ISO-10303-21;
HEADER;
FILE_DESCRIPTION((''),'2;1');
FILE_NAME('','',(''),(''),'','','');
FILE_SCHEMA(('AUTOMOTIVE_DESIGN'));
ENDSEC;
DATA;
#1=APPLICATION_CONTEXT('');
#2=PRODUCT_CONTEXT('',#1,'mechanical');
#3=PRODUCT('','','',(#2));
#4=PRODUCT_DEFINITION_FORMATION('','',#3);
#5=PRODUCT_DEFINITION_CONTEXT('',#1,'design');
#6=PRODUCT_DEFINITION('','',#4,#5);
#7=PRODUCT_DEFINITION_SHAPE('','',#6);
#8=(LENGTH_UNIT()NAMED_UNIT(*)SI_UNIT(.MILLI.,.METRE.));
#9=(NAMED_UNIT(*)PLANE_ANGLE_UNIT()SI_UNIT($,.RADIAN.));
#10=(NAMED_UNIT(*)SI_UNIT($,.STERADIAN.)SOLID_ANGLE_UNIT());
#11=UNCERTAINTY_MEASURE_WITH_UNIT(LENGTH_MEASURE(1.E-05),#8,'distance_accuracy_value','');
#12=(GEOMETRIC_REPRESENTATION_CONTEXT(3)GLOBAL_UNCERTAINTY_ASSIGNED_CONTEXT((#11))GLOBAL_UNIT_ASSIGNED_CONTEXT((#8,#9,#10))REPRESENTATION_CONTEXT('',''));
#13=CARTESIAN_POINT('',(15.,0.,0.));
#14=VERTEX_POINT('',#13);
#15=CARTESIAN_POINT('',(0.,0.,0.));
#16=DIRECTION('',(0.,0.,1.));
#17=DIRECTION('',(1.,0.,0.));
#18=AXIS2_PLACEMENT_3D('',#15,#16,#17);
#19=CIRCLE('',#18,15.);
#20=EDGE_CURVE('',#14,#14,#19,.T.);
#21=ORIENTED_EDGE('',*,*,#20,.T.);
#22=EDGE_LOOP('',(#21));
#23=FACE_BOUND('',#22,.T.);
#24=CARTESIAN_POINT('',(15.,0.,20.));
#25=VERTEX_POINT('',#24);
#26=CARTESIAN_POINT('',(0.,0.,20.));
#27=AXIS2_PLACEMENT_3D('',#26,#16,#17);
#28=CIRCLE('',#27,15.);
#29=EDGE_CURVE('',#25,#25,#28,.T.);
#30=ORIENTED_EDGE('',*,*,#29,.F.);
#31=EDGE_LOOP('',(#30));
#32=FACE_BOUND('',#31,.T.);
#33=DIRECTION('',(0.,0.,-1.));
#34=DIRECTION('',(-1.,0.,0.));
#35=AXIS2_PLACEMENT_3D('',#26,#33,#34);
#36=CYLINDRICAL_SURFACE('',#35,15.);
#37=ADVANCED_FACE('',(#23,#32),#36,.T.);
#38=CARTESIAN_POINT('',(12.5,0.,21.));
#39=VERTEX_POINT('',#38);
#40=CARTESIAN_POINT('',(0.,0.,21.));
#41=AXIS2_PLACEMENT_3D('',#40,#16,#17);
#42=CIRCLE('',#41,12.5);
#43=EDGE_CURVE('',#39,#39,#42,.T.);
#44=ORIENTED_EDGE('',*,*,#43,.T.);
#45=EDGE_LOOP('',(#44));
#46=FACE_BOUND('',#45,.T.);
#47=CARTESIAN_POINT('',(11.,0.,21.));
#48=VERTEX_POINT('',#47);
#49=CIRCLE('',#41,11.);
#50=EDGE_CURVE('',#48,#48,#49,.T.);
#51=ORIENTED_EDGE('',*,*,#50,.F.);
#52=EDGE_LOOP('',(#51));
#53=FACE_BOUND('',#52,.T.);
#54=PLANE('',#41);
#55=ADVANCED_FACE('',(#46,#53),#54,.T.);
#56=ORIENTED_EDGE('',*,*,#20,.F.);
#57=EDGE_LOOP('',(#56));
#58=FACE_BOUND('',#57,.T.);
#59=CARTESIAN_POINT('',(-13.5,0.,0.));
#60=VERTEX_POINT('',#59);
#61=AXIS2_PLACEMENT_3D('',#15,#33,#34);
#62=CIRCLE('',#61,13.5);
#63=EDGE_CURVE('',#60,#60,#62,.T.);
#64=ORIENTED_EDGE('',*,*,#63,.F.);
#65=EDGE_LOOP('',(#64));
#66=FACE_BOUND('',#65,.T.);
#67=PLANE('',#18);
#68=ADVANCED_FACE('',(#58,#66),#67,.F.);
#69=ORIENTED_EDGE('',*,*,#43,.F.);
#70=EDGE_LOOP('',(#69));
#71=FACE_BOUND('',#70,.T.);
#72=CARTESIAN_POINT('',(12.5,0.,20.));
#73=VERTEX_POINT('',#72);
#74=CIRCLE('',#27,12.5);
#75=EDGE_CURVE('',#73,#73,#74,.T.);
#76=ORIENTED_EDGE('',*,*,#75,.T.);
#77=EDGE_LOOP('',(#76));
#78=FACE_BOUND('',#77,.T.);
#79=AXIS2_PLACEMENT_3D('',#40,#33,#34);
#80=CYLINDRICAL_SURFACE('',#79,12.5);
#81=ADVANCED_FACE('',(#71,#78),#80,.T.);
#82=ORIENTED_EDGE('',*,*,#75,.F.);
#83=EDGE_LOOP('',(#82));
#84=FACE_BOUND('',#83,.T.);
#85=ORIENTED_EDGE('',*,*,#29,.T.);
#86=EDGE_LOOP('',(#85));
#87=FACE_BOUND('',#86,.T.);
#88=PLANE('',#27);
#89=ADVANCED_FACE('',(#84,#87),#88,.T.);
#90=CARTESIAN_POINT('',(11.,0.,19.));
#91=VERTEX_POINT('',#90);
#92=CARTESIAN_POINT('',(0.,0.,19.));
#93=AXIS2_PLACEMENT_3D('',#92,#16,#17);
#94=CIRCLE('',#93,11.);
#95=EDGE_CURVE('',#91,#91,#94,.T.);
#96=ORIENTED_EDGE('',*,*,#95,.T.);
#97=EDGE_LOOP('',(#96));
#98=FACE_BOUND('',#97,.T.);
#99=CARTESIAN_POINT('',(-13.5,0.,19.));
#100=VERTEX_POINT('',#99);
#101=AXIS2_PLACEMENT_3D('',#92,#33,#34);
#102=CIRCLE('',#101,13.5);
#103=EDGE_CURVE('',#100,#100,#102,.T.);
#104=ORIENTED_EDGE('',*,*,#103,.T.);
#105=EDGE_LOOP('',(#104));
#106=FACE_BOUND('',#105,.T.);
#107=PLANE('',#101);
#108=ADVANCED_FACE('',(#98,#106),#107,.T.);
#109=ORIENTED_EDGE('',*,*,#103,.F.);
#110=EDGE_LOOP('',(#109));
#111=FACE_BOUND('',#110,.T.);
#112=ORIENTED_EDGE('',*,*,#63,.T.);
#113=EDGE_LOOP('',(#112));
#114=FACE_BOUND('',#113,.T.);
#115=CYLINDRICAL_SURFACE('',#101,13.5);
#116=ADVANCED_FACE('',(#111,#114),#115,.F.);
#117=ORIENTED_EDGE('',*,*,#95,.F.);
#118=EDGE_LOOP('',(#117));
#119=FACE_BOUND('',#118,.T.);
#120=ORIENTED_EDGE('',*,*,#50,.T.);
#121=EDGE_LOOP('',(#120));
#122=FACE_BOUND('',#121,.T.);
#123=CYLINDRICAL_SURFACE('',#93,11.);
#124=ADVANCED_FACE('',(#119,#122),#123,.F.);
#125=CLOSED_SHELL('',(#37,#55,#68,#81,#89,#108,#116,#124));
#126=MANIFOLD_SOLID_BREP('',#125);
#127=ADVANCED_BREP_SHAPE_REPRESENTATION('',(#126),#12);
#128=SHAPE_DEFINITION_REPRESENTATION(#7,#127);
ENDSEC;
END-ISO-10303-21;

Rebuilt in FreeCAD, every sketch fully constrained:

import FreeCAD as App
import Part
import Sketcher
from FreeCAD import Vector
Q = App.Units.Quantity

doc = App.newDocument("Part")
body = doc.addObject("PartDesign::Body", "Body")

sketch1 = body.newObject("Sketcher::SketchObject", "Sketch")
sketch1.AttachmentSupport = (doc.getObject("XY_Plane"), [""])
sketch1.MapMode = "FlatFace"
sketch1.addGeometry(Part.Circle(Vector(0, 0, 0), Vector(0, 0, 1), 15), False)
sketch1.addConstraint(Sketcher.Constraint("Coincident", 0, 3, -1, 1))
sketch1.addConstraint(Sketcher.Constraint("Diameter", 0, Q("30 mm")))
pad1 = body.newObject("PartDesign::Pad", "Pad")
pad1.Profile = sketch1
pad1.Length = 20

sketch2 = body.newObject("Sketcher::SketchObject", "Sketch001")
sketch2.AttachmentSupport = (doc.getObject("XY_Plane"), [""])
sketch2.MapMode = "FlatFace"
sketch2.addGeometry(Part.Circle(Vector(0, 0, 0), Vector(0, 0, 1), 14), False)
sketch2.addConstraint(Sketcher.Constraint("Coincident", 0, 3, -1, 1))
sketch2.addConstraint(Sketcher.Constraint("Diameter", 0, Q("27 mm")))
pocket1 = body.newObject("PartDesign::Pocket", "Pocket")
pocket1.Profile = sketch2
pocket1.Length = 19
pocket1.Reversed = True

sketch3 = body.newObject("Sketcher::SketchObject", "Sketch002")
sketch3.AttachmentSupport = (doc.getObject("XY_Plane"), [""])
sketch3.MapMode = "FlatFace"
sketch3.AttachmentOffset = App.Placement(Vector(0, 0, 20), App.Rotation())
sketch3.addGeometry(Part.Circle(Vector(0, 0, 0), Vector(0, 0, 1), 12), False)
sketch3.addConstraint(Sketcher.Constraint("Coincident", 0, 3, -1, 1))
sketch3.addConstraint(Sketcher.Constraint("Diameter", 0, Q("25 mm")))
pad2 = body.newObject("PartDesign::Pad", "Pad001")
pad2.Profile = sketch3
pad2.Length = 1

sketch4 = body.newObject("Sketcher::SketchObject", "Sketch003")
sketch4.AttachmentSupport = (doc.getObject("XY_Plane"), [""])
sketch4.MapMode = "FlatFace"
sketch4.AttachmentOffset = App.Placement(Vector(0, 0, 21), App.Rotation())
sketch4.addGeometry(Part.Circle(Vector(0, 0, 0), Vector(0, 0, 1), 11), False)
sketch4.addConstraint(Sketcher.Constraint("Coincident", 0, 3, -1, 1))
sketch4.addConstraint(Sketcher.Constraint("Diameter", 0, Q("22 mm")))
pocket2 = body.newObject("PartDesign::Pocket", "Pocket001")
pocket2.Profile = sketch4
pocket2.Length = 2

doc.recompute()
